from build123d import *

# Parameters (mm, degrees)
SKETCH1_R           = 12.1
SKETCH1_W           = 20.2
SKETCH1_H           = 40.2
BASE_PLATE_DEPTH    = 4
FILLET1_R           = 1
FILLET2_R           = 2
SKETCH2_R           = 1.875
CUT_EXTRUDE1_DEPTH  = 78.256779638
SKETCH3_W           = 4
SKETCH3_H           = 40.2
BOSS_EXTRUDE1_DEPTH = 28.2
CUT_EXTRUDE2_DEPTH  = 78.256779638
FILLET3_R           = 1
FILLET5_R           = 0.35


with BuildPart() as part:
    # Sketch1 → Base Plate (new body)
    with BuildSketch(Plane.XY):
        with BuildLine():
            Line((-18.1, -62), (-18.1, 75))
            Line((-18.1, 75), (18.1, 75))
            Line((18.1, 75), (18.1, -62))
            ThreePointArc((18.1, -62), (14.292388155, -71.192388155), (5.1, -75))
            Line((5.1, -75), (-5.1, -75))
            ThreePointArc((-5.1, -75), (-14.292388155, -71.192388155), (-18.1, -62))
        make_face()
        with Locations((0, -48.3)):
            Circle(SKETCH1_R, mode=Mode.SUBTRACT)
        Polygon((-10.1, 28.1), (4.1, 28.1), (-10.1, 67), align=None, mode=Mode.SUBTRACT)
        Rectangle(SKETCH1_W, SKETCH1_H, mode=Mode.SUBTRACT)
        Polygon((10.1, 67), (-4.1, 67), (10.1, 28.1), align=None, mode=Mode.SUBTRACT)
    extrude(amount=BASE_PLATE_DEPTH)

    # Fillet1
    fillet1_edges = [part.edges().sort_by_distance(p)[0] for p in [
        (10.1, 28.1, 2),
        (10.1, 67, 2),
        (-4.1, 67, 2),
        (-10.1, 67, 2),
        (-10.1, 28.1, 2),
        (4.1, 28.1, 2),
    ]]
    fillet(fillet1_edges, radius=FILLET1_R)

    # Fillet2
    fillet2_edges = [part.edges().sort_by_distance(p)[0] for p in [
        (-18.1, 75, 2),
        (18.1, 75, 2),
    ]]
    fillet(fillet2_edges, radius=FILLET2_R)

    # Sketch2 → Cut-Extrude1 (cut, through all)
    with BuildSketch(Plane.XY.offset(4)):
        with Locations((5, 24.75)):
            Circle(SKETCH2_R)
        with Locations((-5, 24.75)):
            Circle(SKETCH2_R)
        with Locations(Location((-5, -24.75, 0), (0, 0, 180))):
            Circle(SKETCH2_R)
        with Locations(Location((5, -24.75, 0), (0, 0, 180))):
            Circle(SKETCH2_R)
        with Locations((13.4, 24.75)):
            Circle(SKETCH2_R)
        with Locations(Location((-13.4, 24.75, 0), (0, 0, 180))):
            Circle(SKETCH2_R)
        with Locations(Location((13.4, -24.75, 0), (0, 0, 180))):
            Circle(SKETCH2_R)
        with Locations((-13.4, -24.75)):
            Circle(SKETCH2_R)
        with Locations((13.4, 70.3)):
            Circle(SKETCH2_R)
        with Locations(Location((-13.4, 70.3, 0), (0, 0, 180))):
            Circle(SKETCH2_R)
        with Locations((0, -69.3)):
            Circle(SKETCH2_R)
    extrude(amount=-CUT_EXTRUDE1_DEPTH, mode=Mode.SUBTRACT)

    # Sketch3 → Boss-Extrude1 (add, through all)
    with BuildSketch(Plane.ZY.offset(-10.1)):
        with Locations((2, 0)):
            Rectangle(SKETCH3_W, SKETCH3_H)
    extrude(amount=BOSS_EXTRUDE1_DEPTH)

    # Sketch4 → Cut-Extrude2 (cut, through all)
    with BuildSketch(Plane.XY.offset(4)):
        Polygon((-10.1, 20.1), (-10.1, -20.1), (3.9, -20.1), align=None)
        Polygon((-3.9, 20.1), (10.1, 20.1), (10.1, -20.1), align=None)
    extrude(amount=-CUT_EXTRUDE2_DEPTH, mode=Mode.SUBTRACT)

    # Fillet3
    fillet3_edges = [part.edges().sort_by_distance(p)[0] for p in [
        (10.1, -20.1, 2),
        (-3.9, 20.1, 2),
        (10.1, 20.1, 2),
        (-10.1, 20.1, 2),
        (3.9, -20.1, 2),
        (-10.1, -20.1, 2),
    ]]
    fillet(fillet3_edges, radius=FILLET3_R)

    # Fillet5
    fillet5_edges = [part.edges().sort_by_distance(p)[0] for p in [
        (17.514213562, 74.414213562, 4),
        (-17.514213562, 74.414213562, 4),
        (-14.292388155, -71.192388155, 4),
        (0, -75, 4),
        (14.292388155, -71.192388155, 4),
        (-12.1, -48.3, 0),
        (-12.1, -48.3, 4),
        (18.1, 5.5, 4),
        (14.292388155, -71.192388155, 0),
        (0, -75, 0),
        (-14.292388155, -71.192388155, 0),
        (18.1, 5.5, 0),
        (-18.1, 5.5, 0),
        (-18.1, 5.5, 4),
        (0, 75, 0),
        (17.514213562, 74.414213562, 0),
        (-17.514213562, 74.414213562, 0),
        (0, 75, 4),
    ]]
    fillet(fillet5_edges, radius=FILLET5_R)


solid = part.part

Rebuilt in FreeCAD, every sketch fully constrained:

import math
import FreeCAD as App
import Part
import Sketcher

V = App.Vector
Q = App.Units.Quantity


def edges_at(feature, points):
    """Names of the edges that pass closest to the given points."""
    edges = feature.Shape.Edges
    near = lambda p: min(range(len(edges)), key=lambda i: edges[i].distToShape(Part.Vertex(*p))[0])
    return sorted({f"Edge{near(p) + 1}" for p in points})

doc = App.newDocument("Part")
body = doc.addObject("PartDesign::Body", "Body")

# Sketch on XY plane
sketch1 = doc.addObject("Sketcher::SketchObject", "Sketch")
body.addObject(sketch1)
sketch1.AttachmentSupport = (doc.XY_Plane, [""])
sketch1.MapMode = "FlatFace"
sketch1.addGeometry([
    Part.LineSegment(V(-18, 75, 0), V(-18, -62, 0)),  # 0
    Part.ArcOfCircle(Part.Circle(V(-5, -62, 0), V(0, 0, 1), 13), math.radians(-180), math.radians(-90)),  # 1
    Part.LineSegment(V(-5, -75, 0), V(5, -75, 0)),  # 2
    Part.ArcOfCircle(Part.Circle(V(5, -62, 0), V(0, 0, 1), 13), math.radians(-90), math.radians(0)),  # 3
    Part.LineSegment(V(18, -62, 0), V(18, 75, 0)),  # 4
    Part.LineSegment(V(18, 75, 0), V(-18, 75, 0)),  # 5
    Part.Circle(V(0, -48, 0), V(0, 0, 1), 12),  # 6
    Part.LineSegment(V(-10, -20, 0), V(-10, 20, 0)),  # 7
    Part.LineSegment(V(-10, 20, 0), V(10, 20, 0)),  # 8
    Part.LineSegment(V(10, 20, 0), V(10, -20, 0)),  # 9
    Part.LineSegment(V(10, -20, 0), V(-10, -20, 0)),  # 10
    Part.LineSegment(V(10, 67, 0), V(10, 28, 0)),  # 11
    Part.LineSegment(V(10, 28, 0), V(-4, 67, 0)),  # 12
    Part.LineSegment(V(-4, 67, 0), V(10, 67, 0)),  # 13
    Part.LineSegment(V(-10, 28, 0), V(-10, 67, 0)),  # 14
    Part.LineSegment(V(-10, 67, 0), V(4, 28, 0)),  # 15
    Part.LineSegment(V(4, 28, 0), V(-10, 28, 0)),  # 16
], False)
sketch1.addConstraint([
    Sketcher.Constraint("Tangent", 0, 2, 1, 1),
    Sketcher.Constraint("Tangent", 1, 2, 2, 1),
    Sketcher.Constraint("Tangent", 2, 2, 3, 1),
    Sketcher.Constraint("Tangent", 3, 2, 4, 1),
    Sketcher.Constraint("Coincident", 4, 2, 5, 1),
    Sketcher.Constraint("Coincident", 5, 2, 0, 1),
    Sketcher.Constraint("Coincident", 7, 2, 8, 1),
    Sketcher.Constraint("Coincident", 8, 2, 9, 1),
    Sketcher.Constraint("Coincident", 9, 2, 10, 1),
    Sketcher.Constraint("Coincident", 10, 2, 7, 1),
    Sketcher.Constraint("Coincident", 11, 2, 12, 1),
    Sketcher.Constraint("Coincident", 12, 2, 13, 1),
    Sketcher.Constraint("Coincident", 13, 2, 11, 1),
    Sketcher.Constraint("Coincident", 14, 2, 15, 1),
    Sketcher.Constraint("Coincident", 15, 2, 16, 1),
    Sketcher.Constraint("Coincident", 16, 2, 14, 1),
    Sketcher.Constraint("Vertical", 0),
    Sketcher.Constraint("Horizontal", 2),
    Sketcher.Constraint("Vertical", 4),
    Sketcher.Constraint("Horizontal", 5),
    Sketcher.Constraint("Vertical", 7),
    Sketcher.Constraint("Horizontal", 8),
    Sketcher.Constraint("Vertical", 9),
    Sketcher.Constraint("Horizontal", 10),
    Sketcher.Constraint("Vertical", 11),
    Sketcher.Constraint("Horizontal", 13),
    Sketcher.Constraint("Vertical", 14),
    Sketcher.Constraint("Horizontal", 16),
    Sketcher.Constraint("Equal", 1, 3),
    Sketcher.Constraint("Symmetric", 7, 2, 9, 2, -1, 1),
    Sketcher.Constraint("Symmetric", 13, 2, 14, 2, -2),
    Sketcher.Constraint("PointOnObject", 6, 3, -2),
    Sketcher.Constraint("Parallel", 12, 15),
    Sketcher.Constraint("Horizontal", 11, 2, 15, 2),
    Sketcher.Constraint("Vertical", 9, 2, 11, 2),
    Sketcher.Constraint("Radius", 1, Q("13 mm")),
    Sketcher.Constraint("Diameter", 6, Q("24.2 mm")),
    Sketcher.Constraint("DistanceY", 0, 2, 0, 1, Q("137 mm")),
    Sketcher.Constraint("DistanceX", 2, 1, 2, 2, Q("10.2 mm")),
    Sketcher.Constraint("DistanceX", 8, 1, 8, 2, Q("20.2 mm")),
    Sketcher.Constraint("DistanceX", 13, 1, 13, 2, Q("14.2 mm")),
    Sketcher.Constraint("DistanceY", 7, 1, 7, 2, Q("40.2 mm")),
    Sketcher.Constraint("DistanceY", 11, 2, 11, 1, Q("38.9 mm")),
    Sketcher.Constraint("DistanceY", 1, 3, -1, 1, Q("62 mm")),
    Sketcher.Constraint("DistanceY", -1, 1, 12, 2, Q("67 mm")),
    Sketcher.Constraint("DistanceX", 5, 2, 7, 2, Q("8 mm")),
    Sketcher.Constraint("DistanceY", 6, 3, -1, 1, Q("48.3 mm")),
])
pad1 = doc.addObject("PartDesign::Pad", "Pad")
body.addObject(pad1)
pad1.Profile = sketch1
pad1.Length = 4
doc.recompute()

fillet = doc.addObject("PartDesign::Fillet", "Fillet")
body.addObject(fillet)
fillet.Base = (pad1, edges_at(pad1, [
    (10.1, 28.1, 2),
    (10.1, 67, 2),
    (-4.1, 67, 2),
    (-10.1, 67, 2),
    (-10.1, 28.1, 2),
    (4.1, 28.1, 2),
]))
fillet.Radius = 1
doc.recompute()

fillet2 = doc.addObject("PartDesign::Fillet", "Fillet001")
body.addObject(fillet2)
fillet2.Base = (fillet, edges_at(fillet, [(-18.1, 75, 2), (18.1, 75, 2)]))
fillet2.Radius = 2

# Sketch on XY plane
sketch2 = doc.addObject("Sketcher::SketchObject", "Sketch001")
body.addObject(sketch2)
sketch2.AttachmentSupport = (doc.XY_Plane, [""])
sketch2.MapMode = "FlatFace"
sketch2.AttachmentOffset = App.Placement(V(0, 0, 4), App.Rotation())
sketch2.addGeometry([
    Part.Circle(V(5, 24.8, 0), V(0, 0, 1), 1.9),  # 0
    Part.Circle(V(-5, 24.8, 0), V(0, 0, 1), 1.9),  # 1
    Part.Circle(V(-5, -24.8, 0), V(0, 0, 1), 1.9),  # 2
    Part.Circle(V(5, -24.8, 0), V(0, 0, 1), 1.9),  # 3
    Part.Circle(V(13.4, 24.8, 0), V(0, 0, 1), 1.9),  # 4
    Part.Circle(V(-13.4, 24.8, 0), V(0, 0, 1), 1.9),  # 5
    Part.Circle(V(13.4, -24.8, 0), V(0, 0, 1), 1.9),  # 6
    Part.Circle(V(-13.4, -24.8, 0), V(0, 0, 1), 1.9),  # 7
    Part.Circle(V(13.4, 70.3, 0), V(0, 0, 1), 1.9),  # 8
    Part.Circle(V(-13.4, 70.3, 0), V(0, 0, 1), 1.9),  # 9
    Part.Circle(V(0, -69.3, 0), V(0, 0, 1), 1.9),  # 10
], False)
sketch2.addConstraint([
    Sketcher.Constraint("Equal", 0, 1),
    Sketcher.Constraint("Equal", 1, 2),
    Sketcher.Constraint("Equal", 2, 3),
    Sketcher.Constraint("Equal", 3, 4),
    Sketcher.Constraint("Equal", 4, 5),
    Sketcher.Constraint("Equal", 5, 6),
    Sketcher.Constraint("Equal", 6, 7),
    Sketcher.Constraint("Equal", 7, 8),
    Sketcher.Constraint("Equal", 8, 9),
    Sketcher.Constraint("Equal", 9, 10),
    Sketcher.Constraint("Symmetric", 0, 3, 2, 3, -1, 1),
    Sketcher.Constraint("Symmetric", 1, 3, 3, 3, -1, 1),
    Sketcher.Constraint("Symmetric", 5, 3, 6, 3, -1, 1),
    Sketcher.Constraint("Symmetric", 4, 3, 7, 3, -1, 1),
    Sketcher.Constraint("Symmetric", 0, 3, 1, 3, -2),
    Sketcher.Constraint("Symmetric", 4, 3, 5, 3, -2),
    Sketcher.Constraint("Symmetric", 8, 3, 9, 3, -2),
    Sketcher.Constraint("PointOnObject", 10, 3, -2),
    Sketcher.Constraint("Horizontal", 1, 3, 4, 3),
    Sketcher.Constraint("Vertical", 6, 3, 8, 3),
    Sketcher.Constraint("Diameter", 0, Q("3.75 mm")),
    Sketcher.Constraint("DistanceX", -1, 1, 0, 3, Q("5 mm")),
    Sketcher.Constraint("DistanceX", -1, 1, 4, 3, Q("13.4 mm")),
    Sketcher.Constraint("DistanceY", -1, 1, 8, 3, Q("70.3 mm")),
    Sketcher.Constraint("DistanceY", 10, 3, -1, 1, Q("69.3 mm")),
    Sketcher.Constraint("DistanceY", 2, 3, 1, 3, Q("49.5 mm")),
])
pocket1 = doc.addObject("PartDesign::Pocket", "Pocket")
body.addObject(pocket1)
pocket1.Profile = sketch2
pocket1.Type = "ThroughAll"

# Sketch on YZ plane
sketch3 = doc.addObject("Sketcher::SketchObject", "Sketch002")
body.addObject(sketch3)
sketch3.AttachmentSupport = (doc.YZ_Plane, [""])
sketch3.MapMode = "FlatFace"
sketch3.AttachmentOffset = App.Placement(V(0, 0, 10.1), App.Rotation())
sketch3.addGeometry([
    Part.LineSegment(V(20.1, 0, 0), V(-20.1, 0, 0)),
    Part.LineSegment(V(-20.1, 0, 0), V(-20.1, 4, 0)),
    Part.LineSegment(V(-20.1, 4, 0), V(20.1, 4, 0)),
    Part.LineSegment(V(20.1, 4, 0), V(20.1, 0, 0)),
], False)
sketch3.addConstraint([
    Sketcher.Constraint("Coincident", 0, 2, 1, 1),
    Sketcher.Constraint("Coincident", 1, 2, 2, 1),
    Sketcher.Constraint("Coincident", 2, 2, 3, 1),
    Sketcher.Constraint("Coincident", 3, 2, 0, 1),
    Sketcher.Constraint("Horizontal", 0),
    Sketcher.Constraint("Vertical", 1),
    Sketcher.Constraint("Horizontal", 2),
    Sketcher.Constraint("Vertical", 3),
    Sketcher.Constraint("Symmetric", 0, 2, 3, 2, -1, 1),
    Sketcher.Constraint("DistanceY", 1, 1, 1, 2, Q("4 mm")),
    Sketcher.Constraint("DistanceX", 0, 2, 0, 1, Q("40.2 mm")),
])
pad2 = doc.addObject("PartDesign::Pad", "Pad001")
body.addObject(pad2)
pad2.Profile = sketch3
pad2.Type = "UpToLast"
pad2.Reversed = True

# Sketch on XY plane
sketch4 = doc.addObject("Sketcher::SketchObject", "Sketch003")
body.addObject(sketch4)
sketch4.AttachmentSupport = (doc.XY_Plane, [""])
sketch4.MapMode = "FlatFace"
sketch4.AttachmentOffset = App.Placement(V(0, 0, 4), App.Rotation())
sketch4.addGeometry([
    Part.LineSegment(V(-10, 20, 0), V(-10, -20, 0)),  # 0
    Part.LineSegment(V(-10, -20, 0), V(4, -20, 0)),  # 1
    Part.LineSegment(V(4, -20, 0), V(-10, 20, 0)),  # 2
    Part.LineSegment(V(10, 20, 0), V(-4, 20, 0)),  # 3
    Part.LineSegment(V(-4, 20, 0), V(10, -20, 0)),  # 4
    Part.LineSegment(V(10, -20, 0), V(10, 20, 0)),  # 5
], False)
sketch4.addConstraint([
    Sketcher.Constraint("Coincident", 0, 2, 1, 1),
    Sketcher.Constraint("Coincident", 1, 2, 2, 1),
    Sketcher.Constraint("Coincident", 2, 2, 0, 1),
    Sketcher.Constraint("Coincident", 3, 2, 4, 1),
    Sketcher.Constraint("Coincident", 4, 2, 5, 1),
    Sketcher.Constraint("Coincident", 5, 2, 3, 1),
    Sketcher.Constraint("Vertical", 0),
    Sketcher.Constraint("Horizontal", 1),
    Sketcher.Constraint("Horizontal", 3),
    Sketcher.Constraint("Vertical", 5),
    Sketcher.Constraint("Symmetric", 1, 2, 3, 2, -1, 1),
    Sketcher.Constraint("Symmetric", 2, 2, 4, 2, -1, 1),
    Sketcher.Constraint("Horizontal", 2, 2, 3, 2),
    Sketcher.Constraint("DistanceX", 1, 1, 1, 2, Q("14 mm")),
    Sketcher.Constraint("DistanceY", 0, 2, 0, 1, Q("40.2 mm")),
    Sketcher.Constraint("DistanceX", 0, 2, -1, 1, Q("10.1 mm")),
])
pocket2 = doc.addObject("PartDesign::Pocket", "Pocket001")
body.addObject(pocket2)
pocket2.Profile = sketch4
pocket2.Type = "ThroughAll"
doc.recompute()

fillet3 = doc.addObject("PartDesign::Fillet", "Fillet002")
body.addObject(fillet3)
fillet3.Base = (pocket2, edges_at(pocket2, [
    (10.1, -20.1, 2),
    (-3.9, 20.1, 2),
    (10.1, 20.1, 2),
    (-10.1, 20.1, 2),
    (3.9, -20.1, 2),
    (-10.1, -20.1, 2),
]))
fillet3.Radius = 1
doc.recompute()

fillet4 = doc.addObject("PartDesign::Fillet", "Fillet003")
body.addObject(fillet4)
fillet4.Base = (fillet3, edges_at(fillet3, [
    (17.514, 74.414, 4),
    (-17.514, 74.414, 4),
    (-14.292, -71.192, 4),
    (0, -75, 4),
    (14.292, -71.192, 4),
    (-12.1, -48.3, 0),
    (-12.1, -48.3, 4),
    (18.1, 5.5, 4),
    (14.292, -71.192, 0),
    (0, -75, 0),
    (-14.292, -71.192, 0),
    (18.1, 5.5, 0),
    (-18.1, 5.5, 0),
    (-18.1, 5.5, 4),
    (0, 75, 0),
    (17.514, 74.414, 0),
    (-17.514, 74.414, 0),
    (0, 75, 4),
]))
fillet4.Radius = 0.35

doc.recompute()
